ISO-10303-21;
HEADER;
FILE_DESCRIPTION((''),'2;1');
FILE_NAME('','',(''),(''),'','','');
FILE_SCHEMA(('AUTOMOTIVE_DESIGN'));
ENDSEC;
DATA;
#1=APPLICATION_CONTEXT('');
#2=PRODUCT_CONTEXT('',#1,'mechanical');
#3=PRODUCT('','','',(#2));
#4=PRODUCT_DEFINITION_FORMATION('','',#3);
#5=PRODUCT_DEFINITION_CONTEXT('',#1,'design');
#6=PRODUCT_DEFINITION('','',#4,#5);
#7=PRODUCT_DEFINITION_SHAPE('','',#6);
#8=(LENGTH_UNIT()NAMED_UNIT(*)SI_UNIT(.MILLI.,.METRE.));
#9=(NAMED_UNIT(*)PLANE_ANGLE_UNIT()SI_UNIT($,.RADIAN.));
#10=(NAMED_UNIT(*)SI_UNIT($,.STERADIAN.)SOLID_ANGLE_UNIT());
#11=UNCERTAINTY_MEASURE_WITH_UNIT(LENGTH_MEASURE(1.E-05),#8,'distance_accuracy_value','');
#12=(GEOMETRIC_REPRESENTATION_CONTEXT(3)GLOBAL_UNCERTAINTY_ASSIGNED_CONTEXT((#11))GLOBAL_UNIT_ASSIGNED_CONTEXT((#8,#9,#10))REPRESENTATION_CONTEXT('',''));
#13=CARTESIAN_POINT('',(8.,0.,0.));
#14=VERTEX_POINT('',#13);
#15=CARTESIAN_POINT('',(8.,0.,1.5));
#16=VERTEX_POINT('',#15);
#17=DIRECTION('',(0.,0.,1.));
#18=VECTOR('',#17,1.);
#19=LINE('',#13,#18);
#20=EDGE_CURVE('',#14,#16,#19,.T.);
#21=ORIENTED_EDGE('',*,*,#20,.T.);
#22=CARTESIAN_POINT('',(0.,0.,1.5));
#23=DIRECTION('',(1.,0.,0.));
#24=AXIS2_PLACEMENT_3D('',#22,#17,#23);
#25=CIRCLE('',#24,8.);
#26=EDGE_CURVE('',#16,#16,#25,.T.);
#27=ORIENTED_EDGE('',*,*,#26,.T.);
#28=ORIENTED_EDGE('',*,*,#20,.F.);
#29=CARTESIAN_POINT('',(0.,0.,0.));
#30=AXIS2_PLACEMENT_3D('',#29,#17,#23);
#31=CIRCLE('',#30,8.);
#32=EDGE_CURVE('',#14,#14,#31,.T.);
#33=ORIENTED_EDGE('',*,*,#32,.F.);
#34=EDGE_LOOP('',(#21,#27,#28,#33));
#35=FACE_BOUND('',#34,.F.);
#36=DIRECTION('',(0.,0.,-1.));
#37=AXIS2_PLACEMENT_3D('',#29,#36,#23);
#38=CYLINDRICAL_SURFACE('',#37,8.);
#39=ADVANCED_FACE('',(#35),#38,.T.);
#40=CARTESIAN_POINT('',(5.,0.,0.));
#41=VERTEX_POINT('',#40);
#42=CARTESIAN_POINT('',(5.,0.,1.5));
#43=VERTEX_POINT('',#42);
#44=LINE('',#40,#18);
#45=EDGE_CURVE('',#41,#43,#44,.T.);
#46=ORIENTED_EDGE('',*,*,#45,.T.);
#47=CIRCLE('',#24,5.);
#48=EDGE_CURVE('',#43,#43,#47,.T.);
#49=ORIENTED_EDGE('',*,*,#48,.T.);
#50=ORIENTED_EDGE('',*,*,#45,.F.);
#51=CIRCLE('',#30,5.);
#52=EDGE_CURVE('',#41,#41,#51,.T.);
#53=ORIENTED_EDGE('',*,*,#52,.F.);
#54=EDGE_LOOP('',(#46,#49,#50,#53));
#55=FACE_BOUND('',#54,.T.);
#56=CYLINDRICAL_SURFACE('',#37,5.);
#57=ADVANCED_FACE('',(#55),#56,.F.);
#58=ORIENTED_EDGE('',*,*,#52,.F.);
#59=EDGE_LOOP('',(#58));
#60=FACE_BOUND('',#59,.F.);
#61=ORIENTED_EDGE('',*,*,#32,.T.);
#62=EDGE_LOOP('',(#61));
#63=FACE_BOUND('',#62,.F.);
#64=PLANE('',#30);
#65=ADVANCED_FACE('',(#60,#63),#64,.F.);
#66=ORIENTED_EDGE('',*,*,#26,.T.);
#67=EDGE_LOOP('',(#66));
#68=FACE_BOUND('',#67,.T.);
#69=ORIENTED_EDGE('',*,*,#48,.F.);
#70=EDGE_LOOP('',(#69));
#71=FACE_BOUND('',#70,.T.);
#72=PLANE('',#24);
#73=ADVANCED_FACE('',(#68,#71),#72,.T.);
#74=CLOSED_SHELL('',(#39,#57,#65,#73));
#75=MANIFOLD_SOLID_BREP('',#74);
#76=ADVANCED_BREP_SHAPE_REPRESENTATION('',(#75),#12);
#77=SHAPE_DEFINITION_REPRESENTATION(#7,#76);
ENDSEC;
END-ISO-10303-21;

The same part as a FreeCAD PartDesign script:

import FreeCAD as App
import Part
import Sketcher
from FreeCAD import Vector
Q = App.Units.Quantity

doc = App.newDocument("Part")
body = doc.addObject("PartDesign::Body", "Body")

# Sketch on XY plane
sketch1 = body.newObject("Sketcher::SketchObject", "Sketch")
sketch1.AttachmentSupport = (doc.getObject("XY_Plane"), [""])
sketch1.MapMode = "FlatFace"
sketch1.addGeometry([
    Part.Circle(Vector(0, 0, 0), Vector(0, 0, 1), 8),
    Part.Circle(Vector(0, 0, 0), Vector(0, 0, 1), 5),
], False)
sketch1.addConstraint([
    Sketcher.Constraint("Coincident", 0, 3, -1, 1),
    Sketcher.Constraint("Coincident", 1, 3, -1, 1),
    Sketcher.Constraint("Diameter", 1, Q("10 mm")),
    Sketcher.Constraint("Diameter", 0, Q("16 mm")),
])
pad1 = body.newObject("PartDesign::Pad", "Pad")
pad1.Profile = sketch1
pad1.Length = 1.5

doc.recompute()
